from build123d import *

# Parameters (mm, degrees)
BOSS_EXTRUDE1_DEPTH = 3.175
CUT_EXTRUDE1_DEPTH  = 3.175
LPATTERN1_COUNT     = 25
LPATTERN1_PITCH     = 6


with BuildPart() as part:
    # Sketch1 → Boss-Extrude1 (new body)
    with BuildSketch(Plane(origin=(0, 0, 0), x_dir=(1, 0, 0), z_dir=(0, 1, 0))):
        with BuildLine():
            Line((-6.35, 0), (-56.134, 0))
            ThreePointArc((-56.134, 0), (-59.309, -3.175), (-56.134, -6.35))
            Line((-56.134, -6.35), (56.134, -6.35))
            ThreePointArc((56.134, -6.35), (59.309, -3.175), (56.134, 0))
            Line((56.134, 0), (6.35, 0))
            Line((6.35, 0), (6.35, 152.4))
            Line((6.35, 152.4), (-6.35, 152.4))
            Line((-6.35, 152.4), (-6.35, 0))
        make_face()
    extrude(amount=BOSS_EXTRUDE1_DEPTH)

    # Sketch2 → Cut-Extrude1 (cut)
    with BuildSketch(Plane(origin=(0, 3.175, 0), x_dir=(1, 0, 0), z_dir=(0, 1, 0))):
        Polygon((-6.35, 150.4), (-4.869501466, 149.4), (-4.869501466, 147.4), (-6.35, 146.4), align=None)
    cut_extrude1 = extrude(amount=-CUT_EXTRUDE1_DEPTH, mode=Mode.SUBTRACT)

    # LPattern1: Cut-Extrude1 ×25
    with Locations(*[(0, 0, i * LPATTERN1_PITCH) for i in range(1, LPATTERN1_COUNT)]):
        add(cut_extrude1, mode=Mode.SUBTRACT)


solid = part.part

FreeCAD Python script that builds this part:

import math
import FreeCAD as App
import Part
import Sketcher

V = App.Vector
Q = App.Units.Quantity


def add_polygon(sketch, points):
    """Adds a closed chain of lines whose ends are joined by coincident constraints."""
    first, n = sketch.GeometryCount, len(points)
    for a, b in zip(points, points[1:] + points[:1]):
        sketch.addGeometry(Part.LineSegment(App.Vector(*a, 0), App.Vector(*b, 0)), False)
    for i in range(n):
        sketch.addConstraint(Sketcher.Constraint("Coincident", first + i, 2, first + (i + 1) % n, 1))

doc = App.newDocument("Part")
body = doc.addObject("PartDesign::Body", "Body")

# Sketch on XZ plane
sketch1 = body.newObject("Sketcher::SketchObject", "Sketch")
sketch1.AttachmentSupport = (doc.getObject("XZ_Plane"), [""])
sketch1.MapMode = "FlatFace"
sketch1.addGeometry([
    Part.LineSegment(V(-6.35, 0, 0), V(-56.134, 0, 0)),  # 0
    Part.ArcOfCircle(Part.Circle(V(-56.134, 3.175, 0), V(0, 0, 1), 3.175), math.radians(90), math.radians(270)),  # 1
    Part.LineSegment(V(-56.134, 6.35, 0), V(56.134, 6.35, 0)),  # 2
    Part.ArcOfCircle(Part.Circle(V(56.134, 3.175, 0), V(0, 0, 1), 3.175), math.radians(-90), math.radians(90)),  # 3
    Part.LineSegment(V(56.134, 0, 0), V(6.35, 0, 0)),  # 4
    Part.LineSegment(V(6.35, 0, 0), V(6.35, -152.4, 0)),  # 5
    Part.LineSegment(V(6.35, -152.4, 0), V(-6.35, -152.4, 0)),  # 6
    Part.LineSegment(V(-6.35, -152.4, 0), V(-6.35, 0, 0)),  # 7
], False)
sketch1.addConstraint([
    Sketcher.Constraint("Tangent", 0, 2, 1, 2),
    Sketcher.Constraint("Tangent", 1, 1, 2, 1),
    Sketcher.Constraint("Tangent", 2, 2, 3, 2),
    Sketcher.Constraint("Tangent", 3, 1, 4, 1),
    Sketcher.Constraint("Coincident", 4, 2, 5, 1),
    Sketcher.Constraint("Coincident", 5, 2, 6, 1),
    Sketcher.Constraint("Coincident", 6, 2, 7, 1),
    Sketcher.Constraint("Coincident", 7, 2, 0, 1),
    Sketcher.Constraint("Horizontal", 0),
    Sketcher.Constraint("Horizontal", 2),
    Sketcher.Constraint("Horizontal", 4),
    Sketcher.Constraint("Vertical", 5),
    Sketcher.Constraint("Horizontal", 6),
    Sketcher.Constraint("Vertical", 7),
    Sketcher.Constraint("Equal", 1, 3),
    Sketcher.Constraint("Symmetric", 0, 2, 3, 1, -1, 1),
    Sketcher.Constraint("Equal", 0, 4),
    Sketcher.Constraint("DistanceY", 5, 2, 5, 1, Q("6 in")),
    Sketcher.Constraint("DistanceX", 6, 2, 6, 1, Q("0.5 in")),
    Sketcher.Constraint("Radius", 1, Q("0.125 in")),
    Sketcher.Constraint("DistanceX", 0, 2, 0, 1, Q("1.96 in")),
])
pad1 = body.newObject("PartDesign::Pad", "Pad")
pad1.Profile = sketch1
pad1.Length = Q("0.125 in")
pad1.Reversed = True

# Sketch on XZ plane
sketch2 = body.newObject("Sketcher::SketchObject", "Sketch001")
sketch2.AttachmentSupport = (doc.getObject("XZ_Plane"), [""])
sketch2.MapMode = "FlatFace"
sketch2.AttachmentOffset = App.Placement(V(0, 0, -0.125 * 25.4), App.Rotation())
add_polygon(sketch2, [(-4.869501, -149.4), (-6.35, -150.4), (-6.35, -146.4), (-4.869501, -147.4)])  # lines 0-3
sketch2.addConstraint([
    Sketcher.Constraint("Vertical", 1),
    Sketcher.Constraint("Vertical", 3),
    Sketcher.Constraint("Equal", 0, 2),
    Sketcher.Constraint("DistanceX", 0, 2, -1, 1, Q("0.25 in")),
    Sketcher.Constraint("DistanceY", 1, 1, 1, 2, 4.0),
    Sketcher.Constraint("DistanceY", 3, 2, 3, 1, 2.0),
    Sketcher.Constraint("DistanceY", 0, 2, -1, 1, 150.4),
    Sketcher.Constraint("DistanceX", 2, 2, -1, 1, 4.869501),
])
pocket1 = body.newObject("PartDesign::Pocket", "Pocket")
pocket1.Profile = sketch2
pocket1.Length = Q("0.125 in")
pocket1.Reversed = True
doc.recompute()

linearpattern = body.newObject("PartDesign::LinearPattern", "LinearPattern")
linearpattern.Originals = [pocket1]
linearpattern.Direction = (doc.getObject("Z_Axis"), [""])
linearpattern.Mode = "offset"
linearpattern.Offset = 6
linearpattern.Occurrences = 25
body.Tip = linearpattern

doc.recompute()
